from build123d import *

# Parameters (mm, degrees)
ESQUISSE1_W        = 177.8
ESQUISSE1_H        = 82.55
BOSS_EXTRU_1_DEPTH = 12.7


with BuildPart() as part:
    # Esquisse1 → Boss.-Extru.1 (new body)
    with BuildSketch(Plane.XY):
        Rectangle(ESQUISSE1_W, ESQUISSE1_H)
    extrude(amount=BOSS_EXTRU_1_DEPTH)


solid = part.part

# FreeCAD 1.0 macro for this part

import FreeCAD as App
import Part
import Sketcher
from FreeCAD import Vector
Q = App.Units.Quantity


def add_polygon(sketch, points):
    """Adds a closed chain of lines whose ends are joined by coincident constraints."""
    first, n = sketch.GeometryCount, len(points)
    for a, b in zip(points, points[1:] + points[:1]):
        sketch.addGeometry(Part.LineSegment(App.Vector(*a, 0), App.Vector(*b, 0)), False)
    for i in range(n):
        sketch.addConstraint(Sketcher.Constraint("Coincident", first + i, 2, first + (i + 1) % n, 1))

doc = App.newDocument("Part")
params = doc.addObject("Spreadsheet::Sheet", "Params")
for row, (alias, value) in enumerate([
    ("sketch1_width", "7 in"),
    ("sketch1_height", "3.25 in"),
    ("pad1_length", "0.5 in"),
], start=1):
    params.set(f"A{row}", alias)
    params.set(f"B{row}", "=" + value)
    params.setAlias(f"B{row}", alias)

body = doc.addObject("PartDesign::Body", "Body")

# Sketch on XY plane
sketch1 = doc.addObject("Sketcher::SketchObject", "Sketch")
body.addObject(sketch1)
sketch1.AttachmentSupport = (doc.XY_Plane, [""])
sketch1.MapMode = "FlatFace"
add_polygon(sketch1, [(-89, 41), (-89, -41), (89, -41), (89, 41)])  # lines 0-3
sketch1.addConstraint(Sketcher.Constraint("Vertical", 0))
sketch1.addConstraint(Sketcher.Constraint("Horizontal", 1))
sketch1.addConstraint(Sketcher.Constraint("Vertical", 2))
sketch1.addConstraint(Sketcher.Constraint("Horizontal", 3))
sketch1.addConstraint(Sketcher.Constraint("Symmetric", 0, 2, 2, 2, -1, 1))
sketch1.addConstraint(Sketcher.Constraint("DistanceX", 1, 1, 1, 2, Q("7 in")))
sketch1.addConstraint(Sketcher.Constraint("DistanceY", 0, 2, 0, 1, Q("3.25 in")))
sketch1.setExpression("Constraints[9]", "Params.sketch1_width")
sketch1.setExpression("Constraints[10]", "Params.sketch1_height")
pad1 = doc.addObject("PartDesign::Pad", "Pad")
body.addObject(pad1)
pad1.Profile = sketch1
pad1.setExpression("Length", "Params.pad1_length")

doc.recompute()
